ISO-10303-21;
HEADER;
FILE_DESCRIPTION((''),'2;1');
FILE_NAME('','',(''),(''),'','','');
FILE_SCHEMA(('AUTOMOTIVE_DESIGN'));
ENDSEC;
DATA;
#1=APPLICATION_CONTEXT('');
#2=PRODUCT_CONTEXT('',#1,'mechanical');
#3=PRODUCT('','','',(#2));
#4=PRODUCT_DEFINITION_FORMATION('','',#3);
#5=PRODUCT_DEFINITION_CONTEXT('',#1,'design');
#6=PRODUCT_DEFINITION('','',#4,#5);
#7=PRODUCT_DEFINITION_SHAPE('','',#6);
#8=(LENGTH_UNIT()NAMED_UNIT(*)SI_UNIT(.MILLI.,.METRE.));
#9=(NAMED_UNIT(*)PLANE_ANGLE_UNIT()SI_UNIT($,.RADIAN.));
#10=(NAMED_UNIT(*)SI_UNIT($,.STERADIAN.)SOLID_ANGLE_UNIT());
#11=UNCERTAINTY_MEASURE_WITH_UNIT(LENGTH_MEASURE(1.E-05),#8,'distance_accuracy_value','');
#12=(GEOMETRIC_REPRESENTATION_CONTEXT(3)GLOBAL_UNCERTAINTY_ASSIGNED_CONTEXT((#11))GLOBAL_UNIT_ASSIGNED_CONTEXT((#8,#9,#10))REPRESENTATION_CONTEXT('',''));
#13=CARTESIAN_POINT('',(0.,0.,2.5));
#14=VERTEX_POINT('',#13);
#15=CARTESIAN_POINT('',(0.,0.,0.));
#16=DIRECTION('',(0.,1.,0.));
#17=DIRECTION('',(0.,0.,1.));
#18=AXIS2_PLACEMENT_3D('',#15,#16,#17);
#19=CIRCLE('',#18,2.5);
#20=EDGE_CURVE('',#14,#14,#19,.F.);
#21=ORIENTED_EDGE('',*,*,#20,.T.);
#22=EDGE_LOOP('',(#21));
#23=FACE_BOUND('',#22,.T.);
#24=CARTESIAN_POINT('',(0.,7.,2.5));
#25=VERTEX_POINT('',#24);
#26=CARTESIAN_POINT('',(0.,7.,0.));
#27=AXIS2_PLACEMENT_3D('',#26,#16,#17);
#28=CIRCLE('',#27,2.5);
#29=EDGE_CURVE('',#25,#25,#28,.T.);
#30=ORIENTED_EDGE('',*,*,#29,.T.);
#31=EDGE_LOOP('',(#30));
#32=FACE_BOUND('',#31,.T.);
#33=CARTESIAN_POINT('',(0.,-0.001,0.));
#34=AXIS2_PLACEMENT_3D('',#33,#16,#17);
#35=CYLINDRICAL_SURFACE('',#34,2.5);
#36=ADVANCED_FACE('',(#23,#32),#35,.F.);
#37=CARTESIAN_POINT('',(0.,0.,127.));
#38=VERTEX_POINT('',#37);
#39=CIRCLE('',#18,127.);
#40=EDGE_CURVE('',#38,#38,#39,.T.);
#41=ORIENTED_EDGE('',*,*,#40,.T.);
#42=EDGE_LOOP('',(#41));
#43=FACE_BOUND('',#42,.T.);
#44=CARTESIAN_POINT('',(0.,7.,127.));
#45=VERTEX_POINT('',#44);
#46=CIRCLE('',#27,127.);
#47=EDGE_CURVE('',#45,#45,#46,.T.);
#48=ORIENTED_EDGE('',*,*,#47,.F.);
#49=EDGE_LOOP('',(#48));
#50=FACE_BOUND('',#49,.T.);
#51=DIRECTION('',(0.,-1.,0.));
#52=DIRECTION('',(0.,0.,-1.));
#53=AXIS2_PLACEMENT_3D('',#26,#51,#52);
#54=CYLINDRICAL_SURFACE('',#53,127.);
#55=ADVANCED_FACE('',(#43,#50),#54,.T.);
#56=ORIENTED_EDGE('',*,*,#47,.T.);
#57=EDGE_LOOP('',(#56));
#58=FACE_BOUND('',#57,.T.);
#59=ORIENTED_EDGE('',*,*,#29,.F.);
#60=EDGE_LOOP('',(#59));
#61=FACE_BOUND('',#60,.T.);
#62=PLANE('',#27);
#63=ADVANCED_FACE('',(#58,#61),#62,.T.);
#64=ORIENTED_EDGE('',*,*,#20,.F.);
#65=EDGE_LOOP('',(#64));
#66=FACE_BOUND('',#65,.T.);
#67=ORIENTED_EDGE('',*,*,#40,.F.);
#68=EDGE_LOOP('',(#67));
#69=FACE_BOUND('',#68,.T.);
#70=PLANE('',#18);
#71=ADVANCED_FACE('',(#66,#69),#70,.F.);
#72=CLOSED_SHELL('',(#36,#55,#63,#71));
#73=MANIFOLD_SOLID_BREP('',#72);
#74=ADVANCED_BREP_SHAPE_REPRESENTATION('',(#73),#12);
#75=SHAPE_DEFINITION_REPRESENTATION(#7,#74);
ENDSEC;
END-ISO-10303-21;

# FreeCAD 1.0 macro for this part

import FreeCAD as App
import Part
import Sketcher
from FreeCAD import Vector
Q = App.Units.Quantity

doc = App.newDocument("Part")
body = doc.addObject("PartDesign::Body", "Body")

# Sketch on XZ plane
sketch1 = body.newObject("Sketcher::SketchObject", "Sketch")
sketch1.AttachmentSupport = (doc.getObject("XZ_Plane"), [""])
sketch1.MapMode = "FlatFace"
sketch1.addGeometry(Part.Circle(Vector(0, 0, 0), Vector(0, 0, 1), 127), False)
sketch1.addConstraint([
    Sketcher.Constraint("Coincident", 0, 3, -1, 1),
    Sketcher.Constraint("Diameter", 0, Q("254 mm")),
])
pad1 = body.newObject("PartDesign::Pad", "Pad")
pad1.Profile = sketch1
pad1.Length = 7
pad1.Reversed = True

# Sketch on XZ plane
sketch2 = body.newObject("Sketcher::SketchObject", "Sketch001")
sketch2.AttachmentSupport = (doc.getObject("XZ_Plane"), [""])
sketch2.MapMode = "FlatFace"
sketch2.AttachmentOffset = App.Placement(Vector(0, 0, -7), App.Rotation())
sketch2.addGeometry(Part.Circle(Vector(0, 0, 0), Vector(0, 0, 1), 2.5), False)
sketch2.addConstraint([
    Sketcher.Constraint("Coincident", 0, 3, -1, 1),
    Sketcher.Constraint("Diameter", 0, Q("5 mm")),
])
pocket1 = body.newObject("PartDesign::Pocket", "Pocket")
pocket1.Profile = sketch2
pocket1.Type = "UpToFirst"
pocket1.Reversed = True

doc.recompute()
